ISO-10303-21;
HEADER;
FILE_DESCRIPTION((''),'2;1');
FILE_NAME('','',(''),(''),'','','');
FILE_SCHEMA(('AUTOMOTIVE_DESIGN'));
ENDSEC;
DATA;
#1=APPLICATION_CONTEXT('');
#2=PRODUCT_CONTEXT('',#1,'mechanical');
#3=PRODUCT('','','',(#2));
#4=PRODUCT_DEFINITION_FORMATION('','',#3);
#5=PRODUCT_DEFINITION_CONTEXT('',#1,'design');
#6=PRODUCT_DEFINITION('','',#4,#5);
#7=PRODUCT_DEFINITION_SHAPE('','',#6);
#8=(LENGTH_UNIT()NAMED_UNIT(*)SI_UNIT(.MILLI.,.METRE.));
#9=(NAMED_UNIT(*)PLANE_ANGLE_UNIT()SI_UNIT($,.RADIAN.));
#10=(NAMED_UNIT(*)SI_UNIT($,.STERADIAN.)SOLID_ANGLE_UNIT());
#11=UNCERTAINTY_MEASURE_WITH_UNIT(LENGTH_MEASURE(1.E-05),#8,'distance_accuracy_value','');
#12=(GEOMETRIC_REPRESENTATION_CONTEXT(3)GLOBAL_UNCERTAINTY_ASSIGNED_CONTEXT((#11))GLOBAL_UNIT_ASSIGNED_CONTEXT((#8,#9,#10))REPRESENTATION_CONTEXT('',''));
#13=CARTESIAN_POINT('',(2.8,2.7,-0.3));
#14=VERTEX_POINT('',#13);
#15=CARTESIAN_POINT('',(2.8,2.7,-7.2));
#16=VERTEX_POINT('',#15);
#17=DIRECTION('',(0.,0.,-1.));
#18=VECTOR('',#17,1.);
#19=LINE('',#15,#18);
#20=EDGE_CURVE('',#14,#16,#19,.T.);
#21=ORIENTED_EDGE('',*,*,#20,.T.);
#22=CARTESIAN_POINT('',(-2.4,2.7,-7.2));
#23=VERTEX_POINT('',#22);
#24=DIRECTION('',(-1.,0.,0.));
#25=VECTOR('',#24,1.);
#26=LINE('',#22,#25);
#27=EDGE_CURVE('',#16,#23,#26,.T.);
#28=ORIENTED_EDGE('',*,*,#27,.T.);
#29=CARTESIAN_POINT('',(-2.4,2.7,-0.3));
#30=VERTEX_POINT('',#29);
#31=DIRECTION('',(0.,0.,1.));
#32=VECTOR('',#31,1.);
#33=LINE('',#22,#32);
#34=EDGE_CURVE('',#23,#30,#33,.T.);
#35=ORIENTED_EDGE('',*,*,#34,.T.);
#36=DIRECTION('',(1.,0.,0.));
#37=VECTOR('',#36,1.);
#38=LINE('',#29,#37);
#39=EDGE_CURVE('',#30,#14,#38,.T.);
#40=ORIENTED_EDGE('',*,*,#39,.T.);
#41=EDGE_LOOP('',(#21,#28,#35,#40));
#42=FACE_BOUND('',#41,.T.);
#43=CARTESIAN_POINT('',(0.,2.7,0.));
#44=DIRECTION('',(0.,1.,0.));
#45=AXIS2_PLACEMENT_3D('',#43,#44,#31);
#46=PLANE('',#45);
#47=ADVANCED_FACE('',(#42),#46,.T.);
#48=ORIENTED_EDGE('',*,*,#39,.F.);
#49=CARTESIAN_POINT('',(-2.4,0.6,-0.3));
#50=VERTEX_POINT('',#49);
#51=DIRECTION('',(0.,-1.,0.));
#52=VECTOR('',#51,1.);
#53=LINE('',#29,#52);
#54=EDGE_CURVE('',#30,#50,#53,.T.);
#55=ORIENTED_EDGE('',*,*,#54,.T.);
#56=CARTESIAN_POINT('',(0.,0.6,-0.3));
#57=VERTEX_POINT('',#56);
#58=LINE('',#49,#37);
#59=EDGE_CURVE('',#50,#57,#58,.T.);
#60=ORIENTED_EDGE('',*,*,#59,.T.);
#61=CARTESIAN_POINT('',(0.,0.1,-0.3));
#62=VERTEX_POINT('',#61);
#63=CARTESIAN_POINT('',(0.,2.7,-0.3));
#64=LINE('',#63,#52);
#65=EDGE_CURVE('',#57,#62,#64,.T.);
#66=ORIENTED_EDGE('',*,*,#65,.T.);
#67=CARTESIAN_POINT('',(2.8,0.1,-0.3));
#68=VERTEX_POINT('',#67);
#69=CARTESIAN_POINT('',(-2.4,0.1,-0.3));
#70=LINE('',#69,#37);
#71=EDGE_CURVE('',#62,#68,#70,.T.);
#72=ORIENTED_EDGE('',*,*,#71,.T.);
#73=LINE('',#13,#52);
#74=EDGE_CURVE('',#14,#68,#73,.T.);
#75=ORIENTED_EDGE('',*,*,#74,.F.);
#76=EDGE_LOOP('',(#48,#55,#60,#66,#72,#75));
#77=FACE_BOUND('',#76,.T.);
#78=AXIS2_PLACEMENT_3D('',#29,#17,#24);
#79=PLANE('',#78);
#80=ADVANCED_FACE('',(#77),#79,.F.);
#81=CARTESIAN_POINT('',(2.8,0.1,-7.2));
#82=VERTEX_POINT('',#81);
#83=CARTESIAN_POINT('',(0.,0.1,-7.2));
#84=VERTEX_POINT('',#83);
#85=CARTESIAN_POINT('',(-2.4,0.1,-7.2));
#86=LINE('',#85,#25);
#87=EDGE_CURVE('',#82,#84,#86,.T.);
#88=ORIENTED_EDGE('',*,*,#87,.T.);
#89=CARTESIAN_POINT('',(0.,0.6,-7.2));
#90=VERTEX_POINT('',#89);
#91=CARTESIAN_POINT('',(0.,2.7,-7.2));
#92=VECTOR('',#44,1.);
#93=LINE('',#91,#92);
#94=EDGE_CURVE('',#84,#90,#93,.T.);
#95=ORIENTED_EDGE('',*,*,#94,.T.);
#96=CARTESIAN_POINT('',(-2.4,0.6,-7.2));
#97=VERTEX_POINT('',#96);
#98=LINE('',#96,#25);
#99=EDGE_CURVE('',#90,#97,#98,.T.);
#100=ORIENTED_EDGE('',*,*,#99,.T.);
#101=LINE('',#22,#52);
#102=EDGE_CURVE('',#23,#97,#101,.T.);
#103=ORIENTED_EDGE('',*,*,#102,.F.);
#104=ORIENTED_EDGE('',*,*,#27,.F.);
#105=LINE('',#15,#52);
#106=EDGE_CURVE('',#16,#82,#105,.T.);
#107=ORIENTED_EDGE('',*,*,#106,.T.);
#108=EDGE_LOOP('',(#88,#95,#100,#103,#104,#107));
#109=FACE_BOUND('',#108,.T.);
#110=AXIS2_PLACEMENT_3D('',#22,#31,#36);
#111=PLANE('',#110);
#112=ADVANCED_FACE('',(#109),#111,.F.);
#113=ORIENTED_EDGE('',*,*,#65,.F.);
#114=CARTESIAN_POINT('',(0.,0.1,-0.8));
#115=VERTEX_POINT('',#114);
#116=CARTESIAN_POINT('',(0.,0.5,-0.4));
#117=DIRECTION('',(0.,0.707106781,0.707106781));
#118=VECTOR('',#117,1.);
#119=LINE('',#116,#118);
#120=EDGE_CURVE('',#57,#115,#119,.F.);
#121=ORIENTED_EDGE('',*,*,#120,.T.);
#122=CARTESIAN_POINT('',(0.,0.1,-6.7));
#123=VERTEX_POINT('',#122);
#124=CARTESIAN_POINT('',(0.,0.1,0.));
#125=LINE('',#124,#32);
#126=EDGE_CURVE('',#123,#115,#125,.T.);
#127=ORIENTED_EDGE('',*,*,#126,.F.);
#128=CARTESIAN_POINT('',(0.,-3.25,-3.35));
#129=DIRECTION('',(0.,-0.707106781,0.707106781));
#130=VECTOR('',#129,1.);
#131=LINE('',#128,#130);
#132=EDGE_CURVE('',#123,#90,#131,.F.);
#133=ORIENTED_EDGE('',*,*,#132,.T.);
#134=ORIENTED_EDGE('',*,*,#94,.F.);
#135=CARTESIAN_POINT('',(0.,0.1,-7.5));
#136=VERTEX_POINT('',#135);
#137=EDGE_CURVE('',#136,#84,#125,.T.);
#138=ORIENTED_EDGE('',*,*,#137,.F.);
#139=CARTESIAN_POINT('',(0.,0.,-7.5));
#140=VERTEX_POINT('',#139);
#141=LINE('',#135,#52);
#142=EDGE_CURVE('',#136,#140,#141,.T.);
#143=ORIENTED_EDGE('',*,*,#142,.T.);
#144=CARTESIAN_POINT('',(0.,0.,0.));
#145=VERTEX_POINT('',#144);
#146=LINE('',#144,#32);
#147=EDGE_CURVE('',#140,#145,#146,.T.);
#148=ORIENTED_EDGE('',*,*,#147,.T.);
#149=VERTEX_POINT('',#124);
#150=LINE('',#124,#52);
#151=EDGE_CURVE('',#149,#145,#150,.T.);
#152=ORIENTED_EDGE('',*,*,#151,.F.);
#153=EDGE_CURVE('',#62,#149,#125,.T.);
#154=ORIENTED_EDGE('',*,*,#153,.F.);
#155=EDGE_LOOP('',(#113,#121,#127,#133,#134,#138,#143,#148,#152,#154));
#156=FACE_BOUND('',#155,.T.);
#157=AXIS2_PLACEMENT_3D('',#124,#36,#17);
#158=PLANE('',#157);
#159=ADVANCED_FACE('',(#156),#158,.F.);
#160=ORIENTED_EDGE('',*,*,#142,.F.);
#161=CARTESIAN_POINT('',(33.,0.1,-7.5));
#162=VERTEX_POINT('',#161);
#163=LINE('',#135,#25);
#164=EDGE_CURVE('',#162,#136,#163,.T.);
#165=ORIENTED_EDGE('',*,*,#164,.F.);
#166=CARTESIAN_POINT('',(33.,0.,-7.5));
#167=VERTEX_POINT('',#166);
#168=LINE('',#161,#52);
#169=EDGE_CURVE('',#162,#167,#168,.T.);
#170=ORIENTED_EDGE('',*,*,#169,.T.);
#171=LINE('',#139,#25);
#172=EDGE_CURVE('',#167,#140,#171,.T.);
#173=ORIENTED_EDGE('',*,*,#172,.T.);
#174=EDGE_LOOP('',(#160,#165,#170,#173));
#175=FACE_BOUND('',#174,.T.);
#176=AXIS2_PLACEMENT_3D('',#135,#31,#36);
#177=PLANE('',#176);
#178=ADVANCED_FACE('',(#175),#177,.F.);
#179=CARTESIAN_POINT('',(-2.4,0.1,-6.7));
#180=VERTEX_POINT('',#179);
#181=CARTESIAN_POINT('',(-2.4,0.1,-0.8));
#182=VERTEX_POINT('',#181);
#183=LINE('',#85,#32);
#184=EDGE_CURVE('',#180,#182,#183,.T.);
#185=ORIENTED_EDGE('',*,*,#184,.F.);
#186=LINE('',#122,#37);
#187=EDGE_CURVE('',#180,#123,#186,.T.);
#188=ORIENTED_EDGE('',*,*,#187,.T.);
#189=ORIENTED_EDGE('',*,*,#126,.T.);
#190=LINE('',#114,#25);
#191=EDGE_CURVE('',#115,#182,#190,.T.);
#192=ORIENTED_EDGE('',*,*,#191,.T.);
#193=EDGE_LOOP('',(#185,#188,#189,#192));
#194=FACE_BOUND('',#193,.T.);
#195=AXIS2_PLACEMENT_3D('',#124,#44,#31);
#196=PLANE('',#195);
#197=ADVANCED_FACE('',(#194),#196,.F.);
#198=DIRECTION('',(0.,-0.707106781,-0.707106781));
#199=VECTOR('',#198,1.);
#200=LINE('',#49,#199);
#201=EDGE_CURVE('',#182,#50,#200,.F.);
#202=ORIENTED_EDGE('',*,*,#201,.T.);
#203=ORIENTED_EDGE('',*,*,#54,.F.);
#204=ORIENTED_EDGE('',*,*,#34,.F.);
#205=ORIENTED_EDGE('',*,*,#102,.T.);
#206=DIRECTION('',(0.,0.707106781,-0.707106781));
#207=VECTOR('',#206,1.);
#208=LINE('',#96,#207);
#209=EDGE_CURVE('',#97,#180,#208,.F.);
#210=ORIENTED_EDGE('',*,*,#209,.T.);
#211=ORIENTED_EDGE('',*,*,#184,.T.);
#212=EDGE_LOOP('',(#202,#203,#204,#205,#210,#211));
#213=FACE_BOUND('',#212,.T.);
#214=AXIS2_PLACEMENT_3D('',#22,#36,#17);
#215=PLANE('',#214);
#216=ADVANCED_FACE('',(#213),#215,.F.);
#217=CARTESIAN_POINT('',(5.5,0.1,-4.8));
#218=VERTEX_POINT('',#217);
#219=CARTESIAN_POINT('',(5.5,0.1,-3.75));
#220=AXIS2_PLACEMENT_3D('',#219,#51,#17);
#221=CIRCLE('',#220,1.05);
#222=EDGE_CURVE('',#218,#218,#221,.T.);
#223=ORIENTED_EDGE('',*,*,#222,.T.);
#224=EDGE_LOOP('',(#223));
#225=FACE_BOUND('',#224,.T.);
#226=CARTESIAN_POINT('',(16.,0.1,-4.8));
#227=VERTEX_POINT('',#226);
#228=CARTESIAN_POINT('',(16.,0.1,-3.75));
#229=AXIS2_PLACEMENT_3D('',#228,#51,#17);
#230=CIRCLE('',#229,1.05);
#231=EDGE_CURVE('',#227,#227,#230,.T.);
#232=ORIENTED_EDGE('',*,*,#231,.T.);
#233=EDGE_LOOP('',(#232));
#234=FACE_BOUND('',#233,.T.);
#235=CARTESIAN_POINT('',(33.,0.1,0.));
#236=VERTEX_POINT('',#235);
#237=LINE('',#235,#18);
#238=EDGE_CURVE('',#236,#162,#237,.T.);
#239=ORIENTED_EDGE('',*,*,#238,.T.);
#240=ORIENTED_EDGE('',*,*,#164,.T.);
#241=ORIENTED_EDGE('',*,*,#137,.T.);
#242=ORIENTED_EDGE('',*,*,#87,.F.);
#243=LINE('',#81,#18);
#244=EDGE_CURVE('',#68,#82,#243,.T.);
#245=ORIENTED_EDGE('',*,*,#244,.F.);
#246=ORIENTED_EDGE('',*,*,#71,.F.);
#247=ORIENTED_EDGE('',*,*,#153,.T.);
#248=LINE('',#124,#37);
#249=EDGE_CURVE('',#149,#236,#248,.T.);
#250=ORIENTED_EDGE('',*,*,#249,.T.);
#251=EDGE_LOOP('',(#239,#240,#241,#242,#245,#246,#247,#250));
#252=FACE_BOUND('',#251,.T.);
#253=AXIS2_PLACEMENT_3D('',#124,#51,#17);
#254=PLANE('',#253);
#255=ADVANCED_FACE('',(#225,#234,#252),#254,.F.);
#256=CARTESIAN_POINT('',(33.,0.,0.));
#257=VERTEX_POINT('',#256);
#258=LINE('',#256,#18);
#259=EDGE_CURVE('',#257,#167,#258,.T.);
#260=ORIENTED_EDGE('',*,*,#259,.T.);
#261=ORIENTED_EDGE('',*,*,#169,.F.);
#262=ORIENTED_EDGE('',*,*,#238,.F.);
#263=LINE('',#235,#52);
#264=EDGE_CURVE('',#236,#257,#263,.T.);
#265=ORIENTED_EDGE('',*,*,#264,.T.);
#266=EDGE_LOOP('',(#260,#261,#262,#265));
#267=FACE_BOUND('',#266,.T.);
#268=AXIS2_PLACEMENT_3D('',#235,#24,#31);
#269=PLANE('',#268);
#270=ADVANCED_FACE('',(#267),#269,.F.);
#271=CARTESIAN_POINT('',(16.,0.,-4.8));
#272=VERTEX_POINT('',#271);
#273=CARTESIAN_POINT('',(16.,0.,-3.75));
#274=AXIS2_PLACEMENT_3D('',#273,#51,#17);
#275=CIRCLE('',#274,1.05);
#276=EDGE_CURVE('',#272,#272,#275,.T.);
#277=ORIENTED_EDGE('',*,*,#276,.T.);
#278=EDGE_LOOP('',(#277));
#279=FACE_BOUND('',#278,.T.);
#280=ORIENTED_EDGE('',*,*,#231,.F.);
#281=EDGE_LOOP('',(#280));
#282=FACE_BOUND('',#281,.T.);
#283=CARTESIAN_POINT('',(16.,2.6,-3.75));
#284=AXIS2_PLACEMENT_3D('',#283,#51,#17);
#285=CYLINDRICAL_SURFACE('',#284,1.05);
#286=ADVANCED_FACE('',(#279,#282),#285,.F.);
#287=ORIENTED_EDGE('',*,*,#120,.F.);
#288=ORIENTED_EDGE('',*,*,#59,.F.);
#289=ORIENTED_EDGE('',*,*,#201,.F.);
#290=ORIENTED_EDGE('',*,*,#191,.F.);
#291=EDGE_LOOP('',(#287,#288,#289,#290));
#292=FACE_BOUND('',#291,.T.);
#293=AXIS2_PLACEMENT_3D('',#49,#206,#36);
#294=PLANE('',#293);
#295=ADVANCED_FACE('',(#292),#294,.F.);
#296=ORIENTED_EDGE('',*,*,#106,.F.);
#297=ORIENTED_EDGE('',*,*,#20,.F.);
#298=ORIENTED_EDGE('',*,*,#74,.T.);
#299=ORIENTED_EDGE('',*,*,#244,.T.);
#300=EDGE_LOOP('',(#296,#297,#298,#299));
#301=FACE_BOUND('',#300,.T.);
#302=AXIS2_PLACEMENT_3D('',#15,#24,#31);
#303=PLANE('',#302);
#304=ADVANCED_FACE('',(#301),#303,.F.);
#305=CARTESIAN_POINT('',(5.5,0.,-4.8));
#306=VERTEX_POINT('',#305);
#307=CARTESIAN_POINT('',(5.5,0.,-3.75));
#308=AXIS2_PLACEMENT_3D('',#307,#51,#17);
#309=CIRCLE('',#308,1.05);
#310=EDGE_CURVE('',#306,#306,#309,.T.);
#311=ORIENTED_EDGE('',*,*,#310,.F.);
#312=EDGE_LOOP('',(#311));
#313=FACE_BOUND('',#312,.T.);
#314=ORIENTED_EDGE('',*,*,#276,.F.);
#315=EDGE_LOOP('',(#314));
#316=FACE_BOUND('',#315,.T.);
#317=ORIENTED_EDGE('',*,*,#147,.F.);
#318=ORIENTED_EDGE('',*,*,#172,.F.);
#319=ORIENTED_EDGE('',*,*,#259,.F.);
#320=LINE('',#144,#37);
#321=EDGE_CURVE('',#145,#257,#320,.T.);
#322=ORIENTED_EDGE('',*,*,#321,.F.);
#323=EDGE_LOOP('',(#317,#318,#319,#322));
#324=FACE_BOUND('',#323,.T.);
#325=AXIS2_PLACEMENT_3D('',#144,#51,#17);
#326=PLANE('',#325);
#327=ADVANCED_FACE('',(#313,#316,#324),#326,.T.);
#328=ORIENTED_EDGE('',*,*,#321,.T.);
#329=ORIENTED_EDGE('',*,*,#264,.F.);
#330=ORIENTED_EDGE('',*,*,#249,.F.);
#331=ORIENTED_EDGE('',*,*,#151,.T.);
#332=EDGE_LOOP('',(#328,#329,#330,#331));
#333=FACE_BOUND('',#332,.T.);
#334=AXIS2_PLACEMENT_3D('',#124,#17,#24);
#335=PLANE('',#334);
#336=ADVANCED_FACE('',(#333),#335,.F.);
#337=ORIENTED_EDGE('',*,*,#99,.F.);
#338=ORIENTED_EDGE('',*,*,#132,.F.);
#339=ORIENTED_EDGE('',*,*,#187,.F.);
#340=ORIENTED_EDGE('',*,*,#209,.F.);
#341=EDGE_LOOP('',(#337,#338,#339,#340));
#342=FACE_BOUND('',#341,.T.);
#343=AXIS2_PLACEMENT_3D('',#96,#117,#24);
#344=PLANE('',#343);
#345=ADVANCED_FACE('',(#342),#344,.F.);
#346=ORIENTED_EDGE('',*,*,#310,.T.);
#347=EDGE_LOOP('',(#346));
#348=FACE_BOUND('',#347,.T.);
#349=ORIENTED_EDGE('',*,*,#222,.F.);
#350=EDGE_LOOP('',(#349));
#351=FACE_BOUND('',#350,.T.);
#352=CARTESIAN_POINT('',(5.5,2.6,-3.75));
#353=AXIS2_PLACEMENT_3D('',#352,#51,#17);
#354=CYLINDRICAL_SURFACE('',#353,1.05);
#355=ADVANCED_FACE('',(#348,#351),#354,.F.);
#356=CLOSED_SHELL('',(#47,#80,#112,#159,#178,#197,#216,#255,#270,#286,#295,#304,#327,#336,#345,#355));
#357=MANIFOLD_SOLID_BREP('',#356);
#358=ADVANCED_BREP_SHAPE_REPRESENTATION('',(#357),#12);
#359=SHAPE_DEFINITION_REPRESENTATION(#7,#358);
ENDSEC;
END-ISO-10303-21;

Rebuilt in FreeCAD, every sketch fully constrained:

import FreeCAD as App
import Part
import Sketcher


def edges_at(feature, points):
    """Names of the edges that pass closest to the given points."""
    edges = feature.Shape.Edges
    near = lambda p: min(range(len(edges)), key=lambda i: edges[i].distToShape(Part.Vertex(*p))[0])
    return sorted({f"Edge{near(p) + 1}" for p in points})


def add_polygon(sketch, points):
    """Adds a closed chain of lines whose ends are joined by coincident constraints."""
    first, n = sketch.GeometryCount, len(points)
    for a, b in zip(points, points[1:] + points[:1]):
        sketch.addGeometry(Part.LineSegment(App.Vector(*a, 0), App.Vector(*b, 0)), False)
    for i in range(n):
        sketch.addConstraint(Sketcher.Constraint("Coincident", first + i, 2, first + (i + 1) % n, 1))

doc = App.newDocument("Part")
body = doc.addObject("PartDesign::Body", "Body")

sketch1 = body.newObject("Sketcher::SketchObject", "Sketch")
sketch1.AttachmentSupport = (doc.getObject("XZ_Plane"), [""])
sketch1.MapMode = "FlatFace"
add_polygon(sketch1, [(0, -7.5), (0, 0), (33, 0), (33, -7.5)])
sketch1.addConstraint([
    Sketcher.Constraint("Vertical", 0),
    Sketcher.Constraint("Horizontal", 1),
    Sketcher.Constraint("Vertical", 2),
    Sketcher.Constraint("Horizontal", 3),
    Sketcher.Constraint("Coincident", 0, 2, -1, 1),
    Sketcher.Constraint("DistanceX", 1, 1, 1, 2, 33.0),
    Sketcher.Constraint("DistanceY", 0, 1, 0, 2, 7.5),
])
pad1 = body.newObject("PartDesign::Pad", "Pad")
pad1.Profile = sketch1
pad1.Length = 0.1
pad1.Reversed = True

sketch2 = body.newObject("Sketcher::SketchObject", "Sketch001")
sketch2.AttachmentSupport = (doc.getObject("XZ_Plane"), [""])
sketch2.MapMode = "FlatFace"
sketch2.AttachmentOffset = App.Placement(App.Vector(0, 0, -0.1), App.Rotation())
add_polygon(sketch2, [(-2.4, -7.2), (-2.4, -0.3), (2.8, -0.3), (2.8, -7.2)])
sketch2.addConstraint([
    Sketcher.Constraint("Vertical", 0),
    Sketcher.Constraint("Horizontal", 1),
    Sketcher.Constraint("Vertical", 2),
    Sketcher.Constraint("Horizontal", 3),
    Sketcher.Constraint("DistanceX", 1, 1, 1, 2, 5.2),
    Sketcher.Constraint("DistanceY", 0, 1, 0, 2, 6.9),
    Sketcher.Constraint("DistanceX", 0, 2, -1, 1, 2.4),
    Sketcher.Constraint("DistanceY", 0, 2, -1, 1, 0.3),
])
pad2 = body.newObject("PartDesign::Pad", "Pad001")
pad2.Profile = sketch2
pad2.Length = 2.6
pad2.Reversed = True
doc.recompute()

chamfer = body.newObject("PartDesign::Chamfer", "Chamfer")
chamfer.Base = (pad2, edges_at(pad2, [(-1.2, 0.1, -0.3), (-1.2, 0.1, -7.2)]))
chamfer.Size = 0.5

sketch3 = body.newObject("Sketcher::SketchObject", "Sketch002")
sketch3.AttachmentSupport = (doc.getObject("XZ_Plane"), [""])
sketch3.MapMode = "FlatFace"
sketch3.addGeometry([
    Part.Circle(App.Vector(5.5, -3.75, 0), App.Vector(0, 0, 1), 1.05),
    Part.Circle(App.Vector(16, -3.75, 0), App.Vector(0, 0, 1), 1.05),
], False)
sketch3.addConstraint([
    Sketcher.Constraint("Equal", 0, 1),
    Sketcher.Constraint("Horizontal", 0, 3, 1, 3),
    Sketcher.Constraint("Diameter", 0, 2.1),
    Sketcher.Constraint("DistanceX", -1, 1, 1, 3, 16.0),
    Sketcher.Constraint("DistanceX", -1, 1, 0, 3, 5.5),
    Sketcher.Constraint("DistanceY", 0, 3, -1, 1, 3.75),
])
pocket1 = body.newObject("PartDesign::Pocket", "Pocket")
pocket1.Profile = sketch3
pocket1.Length = 2.6

doc.recompute()
